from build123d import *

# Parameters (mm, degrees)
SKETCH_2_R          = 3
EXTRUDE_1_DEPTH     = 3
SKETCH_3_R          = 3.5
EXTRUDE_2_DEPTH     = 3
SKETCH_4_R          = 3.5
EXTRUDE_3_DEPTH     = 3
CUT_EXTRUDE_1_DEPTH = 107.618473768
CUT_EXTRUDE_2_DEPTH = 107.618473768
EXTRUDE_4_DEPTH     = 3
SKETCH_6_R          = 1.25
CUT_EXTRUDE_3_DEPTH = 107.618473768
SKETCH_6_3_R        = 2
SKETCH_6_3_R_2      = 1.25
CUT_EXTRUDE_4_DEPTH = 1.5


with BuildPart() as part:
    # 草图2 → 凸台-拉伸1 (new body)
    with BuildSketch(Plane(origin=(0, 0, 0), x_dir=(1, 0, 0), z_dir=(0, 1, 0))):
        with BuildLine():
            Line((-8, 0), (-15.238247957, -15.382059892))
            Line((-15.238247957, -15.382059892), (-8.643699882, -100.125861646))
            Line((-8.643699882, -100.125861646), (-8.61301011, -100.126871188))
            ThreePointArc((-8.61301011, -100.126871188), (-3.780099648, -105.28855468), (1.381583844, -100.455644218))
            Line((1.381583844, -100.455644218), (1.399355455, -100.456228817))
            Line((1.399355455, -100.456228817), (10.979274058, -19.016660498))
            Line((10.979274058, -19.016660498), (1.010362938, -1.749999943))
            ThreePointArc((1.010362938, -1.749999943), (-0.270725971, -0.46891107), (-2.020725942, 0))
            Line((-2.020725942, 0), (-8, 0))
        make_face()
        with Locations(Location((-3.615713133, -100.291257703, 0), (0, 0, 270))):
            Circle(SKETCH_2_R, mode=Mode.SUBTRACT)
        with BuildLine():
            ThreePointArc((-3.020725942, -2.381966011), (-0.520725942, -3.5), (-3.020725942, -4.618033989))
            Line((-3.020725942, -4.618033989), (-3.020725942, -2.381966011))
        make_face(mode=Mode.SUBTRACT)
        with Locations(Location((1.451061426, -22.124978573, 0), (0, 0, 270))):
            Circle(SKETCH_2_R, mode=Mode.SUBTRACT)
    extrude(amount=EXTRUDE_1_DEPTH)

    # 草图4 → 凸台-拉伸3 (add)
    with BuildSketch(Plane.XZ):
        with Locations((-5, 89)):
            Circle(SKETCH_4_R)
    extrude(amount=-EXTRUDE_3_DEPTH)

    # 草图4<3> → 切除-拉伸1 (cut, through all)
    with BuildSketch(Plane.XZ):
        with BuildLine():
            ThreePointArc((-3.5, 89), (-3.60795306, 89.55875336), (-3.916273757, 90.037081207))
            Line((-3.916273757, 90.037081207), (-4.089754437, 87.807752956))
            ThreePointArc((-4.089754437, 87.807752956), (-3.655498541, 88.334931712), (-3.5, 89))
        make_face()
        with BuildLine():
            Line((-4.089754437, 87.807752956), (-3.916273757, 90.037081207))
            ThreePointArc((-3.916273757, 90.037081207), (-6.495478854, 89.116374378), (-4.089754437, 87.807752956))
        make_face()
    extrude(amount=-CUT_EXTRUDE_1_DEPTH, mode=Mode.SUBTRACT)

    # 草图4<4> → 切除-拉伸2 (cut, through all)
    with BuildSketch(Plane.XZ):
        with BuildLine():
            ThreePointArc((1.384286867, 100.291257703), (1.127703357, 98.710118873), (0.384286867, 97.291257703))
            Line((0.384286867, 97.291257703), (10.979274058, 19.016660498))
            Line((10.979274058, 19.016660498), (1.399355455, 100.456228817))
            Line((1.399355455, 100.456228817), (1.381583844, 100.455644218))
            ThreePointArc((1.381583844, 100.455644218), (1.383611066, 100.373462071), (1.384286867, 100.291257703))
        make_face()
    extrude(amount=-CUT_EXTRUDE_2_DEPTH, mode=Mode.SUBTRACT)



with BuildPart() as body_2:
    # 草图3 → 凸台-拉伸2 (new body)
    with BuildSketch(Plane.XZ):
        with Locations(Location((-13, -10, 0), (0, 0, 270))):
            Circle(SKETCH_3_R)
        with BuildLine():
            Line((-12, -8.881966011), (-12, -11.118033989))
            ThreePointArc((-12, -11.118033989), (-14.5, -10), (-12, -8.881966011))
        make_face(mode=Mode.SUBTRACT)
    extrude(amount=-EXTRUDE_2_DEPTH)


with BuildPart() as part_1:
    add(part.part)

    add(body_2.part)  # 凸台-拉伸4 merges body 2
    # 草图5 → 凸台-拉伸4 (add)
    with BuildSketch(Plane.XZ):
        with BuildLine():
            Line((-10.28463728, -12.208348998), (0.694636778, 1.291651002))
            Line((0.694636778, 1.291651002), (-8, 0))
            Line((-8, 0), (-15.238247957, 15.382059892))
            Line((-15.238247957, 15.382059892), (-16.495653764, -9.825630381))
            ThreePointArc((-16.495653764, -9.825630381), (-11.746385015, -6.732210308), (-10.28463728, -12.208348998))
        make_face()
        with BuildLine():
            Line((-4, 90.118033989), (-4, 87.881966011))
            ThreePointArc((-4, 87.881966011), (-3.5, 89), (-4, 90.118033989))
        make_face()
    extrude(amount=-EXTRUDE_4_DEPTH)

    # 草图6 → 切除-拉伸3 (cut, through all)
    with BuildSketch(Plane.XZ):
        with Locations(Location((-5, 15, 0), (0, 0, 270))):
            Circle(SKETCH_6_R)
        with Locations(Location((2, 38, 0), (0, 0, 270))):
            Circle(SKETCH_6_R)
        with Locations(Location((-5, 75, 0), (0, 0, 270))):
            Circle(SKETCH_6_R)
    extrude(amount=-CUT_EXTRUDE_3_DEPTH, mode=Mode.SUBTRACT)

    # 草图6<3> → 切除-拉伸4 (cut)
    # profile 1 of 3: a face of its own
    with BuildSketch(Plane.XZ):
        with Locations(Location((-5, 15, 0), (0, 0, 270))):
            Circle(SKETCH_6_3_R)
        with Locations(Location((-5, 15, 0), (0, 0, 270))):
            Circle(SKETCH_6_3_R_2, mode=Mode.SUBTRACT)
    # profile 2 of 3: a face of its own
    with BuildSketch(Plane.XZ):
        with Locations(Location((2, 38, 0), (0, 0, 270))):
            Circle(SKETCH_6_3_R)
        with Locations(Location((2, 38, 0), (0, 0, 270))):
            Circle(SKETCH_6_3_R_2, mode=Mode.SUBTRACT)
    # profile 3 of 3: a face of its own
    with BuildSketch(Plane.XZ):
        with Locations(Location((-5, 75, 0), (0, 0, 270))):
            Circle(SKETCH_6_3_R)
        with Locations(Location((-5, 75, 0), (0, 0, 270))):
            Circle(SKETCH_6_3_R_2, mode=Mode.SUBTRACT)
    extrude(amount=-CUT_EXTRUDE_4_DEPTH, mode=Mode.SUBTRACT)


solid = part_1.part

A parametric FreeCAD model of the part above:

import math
import FreeCAD as App
import Part
import Sketcher
Q = App.Units.Quantity

doc = App.newDocument("Part")
body = doc.addObject("PartDesign::Body", "Body")

sketch1 = doc.addObject("Sketcher::SketchObject", "Sketch")
body.addObject(sketch1)
sketch1.AttachmentSupport = (doc.XZ_Plane, [""])
sketch1.MapMode = "FlatFace"
sketch1.addGeometry([
    Part.LineSegment(App.Vector(-8, 0, 0), App.Vector(-15.238, 15.382, 0)),
    Part.LineSegment(App.Vector(-15.238, 15.382, 0), App.Vector(-8.644, 100.126, 0)),
    Part.LineSegment(App.Vector(-8.644, 100.126, 0), App.Vector(-8.613, 100.127, 0)),
    Part.ArcOfCircle(Part.Circle(App.Vector(-3.616, 100.291, 0), App.Vector(0, 0, 1), 5), math.radians(2), math.radians(182)),
    Part.LineSegment(App.Vector(1.382, 100.456, 0), App.Vector(1.399, 100.456, 0)),
    Part.LineSegment(App.Vector(1.399, 100.456, 0), App.Vector(10.979, 19.017, 0)),
    Part.LineSegment(App.Vector(10.979, 19.017, 0), App.Vector(1.01, 1.75, 0)),
    Part.ArcOfCircle(Part.Circle(App.Vector(-2.021, 3.5, 0), App.Vector(0, 0, 1), 3.5), math.radians(-90), math.radians(-30)),
    Part.LineSegment(App.Vector(-2.021, 0, 0), App.Vector(-8, 0, 0)),
    Part.Circle(App.Vector(-3.616, 100.291, 0), App.Vector(0, 0, 1), 3),
    Part.LineSegment(App.Vector(-3.021, 4.618, 0), App.Vector(-3.021, 2.382, 0)),
    Part.ArcOfCircle(Part.Circle(App.Vector(-2.021, 3.5, 0), App.Vector(0, 0, 1), 1.5), math.radians(-132), math.radians(132)),
    Part.Circle(App.Vector(1.451, 22.125, 0), App.Vector(0, 0, 1), 3),
], False)
sketch1.addConstraint([
    Sketcher.Constraint("Coincident", 0, 2, 1, 1),
    Sketcher.Constraint("Coincident", 1, 2, 2, 1),
    Sketcher.Constraint("Coincident", 2, 2, 3, 2),
    Sketcher.Constraint("Coincident", 3, 1, 4, 1),
    Sketcher.Constraint("Coincident", 4, 2, 5, 1),
    Sketcher.Constraint("Coincident", 5, 2, 6, 1),
    Sketcher.Constraint("Tangent", 6, 2, 7, 2),
    Sketcher.Constraint("Tangent", 7, 1, 8, 1),
    Sketcher.Constraint("Coincident", 8, 2, 0, 1),
    Sketcher.Constraint("Coincident", 10, 1, 11, 2),
    Sketcher.Constraint("Coincident", 11, 1, 10, 2),
    Sketcher.Constraint("Horizontal", 8),
    Sketcher.Constraint("Vertical", 10),
    Sketcher.Constraint("Coincident", 9, 3, 3, 3),
    Sketcher.Constraint("Coincident", 11, 3, 7, 3),
    Sketcher.Constraint("Equal", 9, 12),
    Sketcher.Constraint("PointOnObject", 7, 1, -1),
    Sketcher.Constraint("Parallel", 2, 4),
    Sketcher.Constraint("Diameter", 9, Q("6 mm")),
    Sketcher.Constraint("Radius", 3, Q("5 mm")),
    Sketcher.Constraint("Radius", 7, Q("3.5 mm")),
    Sketcher.Constraint("Radius", 11, Q("1.5 mm")),
    Sketcher.Constraint("Angle", 6, Q("-120 deg")),
    Sketcher.Constraint("Distance", 0, Q("17 mm")),
    Sketcher.Constraint("Distance", 1, Q("85 mm")),
    Sketcher.Constraint("DistanceX", 8, 2, -1, 1, Q("8 mm")),
    Sketcher.Constraint("Angle", 0, Q("115.2 deg")),
    Sketcher.Constraint("DistanceX", 11, 3, 5, 2, Q("13 mm")),
    Sketcher.Constraint("DistanceX", 10, 1, 11, 3, Q("1 mm")),
    Sketcher.Constraint("DistanceX", 1, 2, -1, 1, Q("8.6437 mm")),
    Sketcher.Constraint("DistanceX", 6, 2, 12, 3, Q("0.440698 mm")),
    Sketcher.Constraint("Distance", 4, Q("0.017781 mm")),
    Sketcher.Constraint("DistanceX", 8, 2, 8, 1, Q("5.979274 mm")),
    Sketcher.Constraint("DistanceY", -1, 1, 12, 3, Q("22.124979 mm")),
    Sketcher.Constraint("DistanceX", 2, 2, -1, 1, Q("8.61301 mm")),
    Sketcher.Constraint("DistanceY", -1, 1, 2, 2, Q("100.126871 mm")),
    Sketcher.Constraint("DistanceY", -1, 1, 4, 2, Q("100.456229 mm")),
    Sketcher.Constraint("DistanceY", 12, 3, 3, 3, Q("78.166279 mm")),
])
pad1 = doc.addObject("PartDesign::Pad", "Pad")
body.addObject(pad1)
pad1.Profile = sketch1
pad1.Length = 3
pad1.Reversed = True

sketch2 = doc.addObject("Sketcher::SketchObject", "Sketch001")
body.addObject(sketch2)
sketch2.AttachmentSupport = (doc.XZ_Plane, [""])
sketch2.MapMode = "FlatFace"
sketch2.addGeometry(Part.Circle(App.Vector(-5, 89, 0), App.Vector(0, 0, 1), 3.5), False)
sketch2.addConstraint([
    Sketcher.Constraint("Diameter", 0, Q("7 mm")),
    Sketcher.Constraint("DistanceX", 0, 3, -1, 1, Q("5 mm")),
    Sketcher.Constraint("DistanceY", -1, 1, 0, 3, Q("89 mm")),
])
pad2 = doc.addObject("PartDesign::Pad", "Pad001")
body.addObject(pad2)
pad2.Profile = sketch2
pad2.Length = 3
pad2.Reversed = True

sketch3 = doc.addObject("Sketcher::SketchObject", "Sketch002")
body.addObject(sketch3)
sketch3.AttachmentSupport = (doc.XZ_Plane, [""])
sketch3.MapMode = "FlatFace"
sketch3.addGeometry([
    Part.ArcOfCircle(Part.Circle(App.Vector(-5, 89, 0), App.Vector(0, 0, 1), 1.5), math.radians(0), math.radians(44)),
    Part.ArcOfCircle(Part.Circle(App.Vector(-5, 89, 0), App.Vector(0, 0, 1), 1.5), math.radians(44), math.radians(307)),
    Part.ArcOfCircle(Part.Circle(App.Vector(-5, 89, 0), App.Vector(0, 0, 1), 1.5), math.radians(-53), math.radians(0)),
], False)
sketch3.addConstraint([
    Sketcher.Constraint("Tangent", 0, 2, 1, 1),
    Sketcher.Constraint("Tangent", 1, 2, 2, 1),
    Sketcher.Constraint("Tangent", 2, 2, 0, 1),
    Sketcher.Constraint("Horizontal", 1, 3, 2, 2),
    Sketcher.Constraint("Radius", 0, Q("1.5 mm")),
    Sketcher.Constraint("DistanceX", 0, 3, -1, 1, Q("5 mm")),
    Sketcher.Constraint("DistanceY", -1, 1, 0, 3, Q("89 mm")),
    Sketcher.Constraint("DistanceY", -1, 1, 0, 2, Q("90.037081 mm")),
    Sketcher.Constraint("DistanceX", 1, 2, 0, 2, Q("0.173481 mm")),
])
pocket1 = doc.addObject("PartDesign::Pocket", "Pocket")
body.addObject(pocket1)
pocket1.Profile = sketch3
pocket1.Type = "ThroughAll"

sketch4 = doc.addObject("Sketcher::SketchObject", "Sketch003")
body.addObject(sketch4)
sketch4.AttachmentSupport = (doc.XZ_Plane, [""])
sketch4.MapMode = "FlatFace"
sketch4.addGeometry([
    Part.ArcOfCircle(Part.Circle(App.Vector(-3.615713, 100.291258, 0), App.Vector(0, 0, 1), 5), math.radians(-36.869898), math.radians(0)),
    Part.LineSegment(App.Vector(0.384287, 97.291258, 0), App.Vector(10.979274, 19.01666, 0)),
    Part.LineSegment(App.Vector(10.979274, 19.01666, 0), App.Vector(1.399355, 100.456229, 0)),
    Part.LineSegment(App.Vector(1.399355, 100.456229, 0), App.Vector(1.381584, 100.455644, 0)),
    Part.ArcOfCircle(Part.Circle(App.Vector(-3.615711, 100.291258, 0), App.Vector(0, 0, 1), 4.999997), math.radians(-0.000001), math.radians(1.884071)),
], False)
sketch4.addConstraint([
    Sketcher.Constraint("Coincident", 0, 1, 1, 1),
    Sketcher.Constraint("Coincident", 1, 2, 2, 1),
    Sketcher.Constraint("Coincident", 2, 2, 3, 1),
    Sketcher.Constraint("Coincident", 3, 2, 4, 2),
    Sketcher.Constraint("Tangent", 4, 1, 0, 2),
    Sketcher.Constraint("Horizontal", 0, 3, 4, 1),
    Sketcher.Constraint("Radius", 0, Q("5 mm")),
    Sketcher.Constraint("DistanceY", 0, 1, 4, 3, Q("3 mm")),
    Sketcher.Constraint("Radius", 4, Q("4.999997 mm")),
    Sketcher.Constraint("Distance", 3, Q("0.017781 mm")),
    Sketcher.Constraint("DistanceX", 4, 3, -1, 1, Q("3.615711 mm")),
    Sketcher.Constraint("DistanceY", -1, 1, 1, 2, Q("19.01666 mm")),
    Sketcher.Constraint("DistanceY", -1, 1, 2, 2, Q("100.456229 mm")),
    Sketcher.Constraint("DistanceX", 0, 1, 2, 2, Q("1.015069 mm")),
    Sketcher.Constraint("DistanceX", 2, 2, 1, 2, Q("9.579919 mm")),
    Sketcher.Constraint("DistanceX", 3, 2, 2, 2, Q("0.017772 mm")),
])
pocket2 = doc.addObject("PartDesign::Pocket", "Pocket001")
body.addObject(pocket2)
pocket2.Profile = sketch4
pocket2.Type = "ThroughAll"
body2 = doc.addObject("PartDesign::Body", "Body001")

sketch5 = doc.addObject("Sketcher::SketchObject", "Sketch004")
body2.addObject(sketch5)
sketch5.AttachmentSupport = (doc.getObject("XZ_Plane001"), [""])
sketch5.MapMode = "FlatFace"
sketch5.addGeometry([
    Part.Circle(App.Vector(-13, -10, 0), App.Vector(0, 0, 1), 3.5),
    Part.ArcOfCircle(Part.Circle(App.Vector(-13, -10, 0), App.Vector(0, 0, 1), 1.5), math.radians(48), math.radians(312)),
    Part.LineSegment(App.Vector(-12, -8.9, 0), App.Vector(-12, -11.1, 0)),
], False)
sketch5.addConstraint([
    Sketcher.Constraint("Coincident", 1, 1, 2, 1),
    Sketcher.Constraint("Coincident", 2, 2, 1, 2),
    Sketcher.Constraint("Vertical", 2),
    Sketcher.Constraint("Coincident", 1, 3, 0, 3),
    Sketcher.Constraint("Diameter", 0, Q("7 mm")),
    Sketcher.Constraint("Radius", 1, Q("1.5 mm")),
    Sketcher.Constraint("DistanceX", 0, 3, -1, 1, Q("13 mm")),
    Sketcher.Constraint("DistanceY", 0, 3, -1, 1, Q("10 mm")),
    Sketcher.Constraint("DistanceX", 1, 1, -1, 1, Q("12 mm")),
])
pad3 = doc.addObject("PartDesign::Pad", "Pad002")
body2.addObject(pad3)
pad3.Profile = sketch5
pad3.Length = 3
pad3.Reversed = True
body.AllowCompound = True
doc.recompute()

boolean = doc.addObject("PartDesign::Boolean", "Boolean")
body.addObject(boolean)
boolean.Type = "Fuse"
boolean.addObjects([body2])

sketch6 = doc.addObject("Sketcher::SketchObject", "Sketch005")
body.addObject(sketch6)
sketch6.AttachmentSupport = (doc.XZ_Plane, [""])
sketch6.MapMode = "FlatFace"
sketch6.addGeometry([
    Part.LineSegment(App.Vector(-10.3, -12.2, 0), App.Vector(0.7, 1.3, 0)),
    Part.LineSegment(App.Vector(0.7, 1.3, 0), App.Vector(-8, 0, 0)),
    Part.LineSegment(App.Vector(-8, 0, 0), App.Vector(-15.2, 15.4, 0)),
    Part.LineSegment(App.Vector(-15.2, 15.4, 0), App.Vector(-16.5, -9.8, 0)),
    Part.ArcOfCircle(Part.Circle(App.Vector(-13, -10, 0), App.Vector(0, 0, 1), 3.5), math.radians(-39), math.radians(177)),
    Part.LineSegment(App.Vector(-4, 90.1, 0), App.Vector(-4, 87.9, 0)),
    Part.ArcOfCircle(Part.Circle(App.Vector(-5, 89, 0), App.Vector(0, 0, 1), 1.5), math.radians(-48), math.radians(48)),
], False)
sketch6.addConstraint([
    Sketcher.Constraint("Coincident", 0, 2, 1, 1),
    Sketcher.Constraint("Coincident", 1, 2, 2, 1),
    Sketcher.Constraint("Coincident", 2, 2, 3, 1),
    Sketcher.Constraint("Tangent", 3, 2, 4, 2),
    Sketcher.Constraint("Tangent", 4, 1, 0, 1),
    Sketcher.Constraint("Coincident", 5, 1, 6, 2),
    Sketcher.Constraint("Coincident", 6, 1, 5, 2),
    Sketcher.Constraint("Vertical", 5),
    Sketcher.Constraint("PointOnObject", 1, 2, -1),
    Sketcher.Constraint("Radius", 4, Q("3.5 mm")),
    Sketcher.Constraint("Radius", 6, Q("1.5 mm")),
    Sketcher.Constraint("Distance", 2, Q("17 mm")),
    Sketcher.Constraint("DistanceX", 4, 3, -1, 1, Q("13 mm")),
    Sketcher.Constraint("DistanceY", 4, 3, -1, 1, Q("10 mm")),
    Sketcher.Constraint("DistanceX", 6, 3, -1, 1, Q("5 mm")),
    Sketcher.Constraint("DistanceY", -1, 1, 6, 3, Q("89 mm")),
    Sketcher.Constraint("DistanceX", 1, 2, -1, 1, Q("8 mm")),
    Sketcher.Constraint("DistanceX", 5, 1, -1, 1, Q("4 mm")),
    Sketcher.Constraint("Angle", 2, Q("115.2 deg")),
    Sketcher.Constraint("DistanceY", 4, 1, 0, 2, Q("13.5 mm")),
    Sketcher.Constraint("Distance", 0, Q("17.40099 mm")),
])
pad4 = doc.addObject("PartDesign::Pad", "Pad003")
body.addObject(pad4)
pad4.Profile = sketch6
pad4.Length = 3
pad4.Reversed = True

sketch7 = doc.addObject("Sketcher::SketchObject", "Sketch006")
body.addObject(sketch7)
sketch7.AttachmentSupport = (doc.XZ_Plane, [""])
sketch7.MapMode = "FlatFace"
sketch7.addGeometry([
    Part.Circle(App.Vector(-5, 15, 0), App.Vector(0, 0, 1), 1.2),
    Part.Circle(App.Vector(2, 38, 0), App.Vector(0, 0, 1), 1.2),
    Part.Circle(App.Vector(-5, 75, 0), App.Vector(0, 0, 1), 1.2),
], False)
sketch7.addConstraint([
    Sketcher.Constraint("Equal", 0, 1),
    Sketcher.Constraint("Equal", 1, 2),
    Sketcher.Constraint("Vertical", 0, 3, 2, 3),
    Sketcher.Constraint("Diameter", 0, Q("2.5 mm")),
    Sketcher.Constraint("DistanceX", 0, 3, -1, 1, Q("5 mm")),
    Sketcher.Constraint("DistanceY", -1, 1, 0, 3, Q("15 mm")),
    Sketcher.Constraint("DistanceX", -1, 1, 1, 3, Q("2 mm")),
    Sketcher.Constraint("DistanceY", -1, 1, 1, 3, Q("38 mm")),
    Sketcher.Constraint("DistanceY", -1, 1, 2, 3, Q("75 mm")),
])
pocket3 = doc.addObject("PartDesign::Pocket", "Pocket002")
body.addObject(pocket3)
pocket3.Profile = sketch7
pocket3.Type = "ThroughAll"

sketch8 = doc.addObject("Sketcher::SketchObject", "Sketch007")
body.addObject(sketch8)
sketch8.AttachmentSupport = (doc.XZ_Plane, [""])
sketch8.MapMode = "FlatFace"
sketch8.addGeometry([
    Part.Circle(App.Vector(-5, 15, 0), App.Vector(0, 0, 1), 2),
    Part.Circle(App.Vector(-5, 15, 0), App.Vector(0, 0, 1), 1.2),
    Part.Circle(App.Vector(2, 38, 0), App.Vector(0, 0, 1), 2),
    Part.Circle(App.Vector(2, 38, 0), App.Vector(0, 0, 1), 1.2),
    Part.Circle(App.Vector(-5, 75, 0), App.Vector(0, 0, 1), 2),
    Part.Circle(App.Vector(-5, 75, 0), App.Vector(0, 0, 1), 1.2),
], False)
sketch8.addConstraint([
    Sketcher.Constraint("Coincident", 1, 3, 0, 3),
    Sketcher.Constraint("Coincident", 3, 3, 2, 3),
    Sketcher.Constraint("Coincident", 5, 3, 4, 3),
    Sketcher.Constraint("Equal", 0, 2),
    Sketcher.Constraint("Equal", 1, 3),
    Sketcher.Constraint("Equal", 2, 4),
    Sketcher.Constraint("Equal", 3, 5),
    Sketcher.Constraint("Vertical", 1, 3, 4, 3),
    Sketcher.Constraint("Diameter", 0, Q("4 mm")),
    Sketcher.Constraint("Diameter", 1, Q("2.5 mm")),
    Sketcher.Constraint("DistanceX", 0, 3, -1, 1, Q("5 mm")),
    Sketcher.Constraint("DistanceY", -1, 1, 0, 3, Q("15 mm")),
    Sketcher.Constraint("DistanceX", -1, 1, 2, 3, Q("2 mm")),
    Sketcher.Constraint("DistanceY", -1, 1, 2, 3, Q("38 mm")),
    Sketcher.Constraint("DistanceY", -1, 1, 4, 3, Q("75 mm")),
])
pocket4 = doc.addObject("PartDesign::Pocket", "Pocket003")
body.addObject(pocket4)
pocket4.Profile = sketch8
pocket4.Length = 1.5

doc.recompute()
